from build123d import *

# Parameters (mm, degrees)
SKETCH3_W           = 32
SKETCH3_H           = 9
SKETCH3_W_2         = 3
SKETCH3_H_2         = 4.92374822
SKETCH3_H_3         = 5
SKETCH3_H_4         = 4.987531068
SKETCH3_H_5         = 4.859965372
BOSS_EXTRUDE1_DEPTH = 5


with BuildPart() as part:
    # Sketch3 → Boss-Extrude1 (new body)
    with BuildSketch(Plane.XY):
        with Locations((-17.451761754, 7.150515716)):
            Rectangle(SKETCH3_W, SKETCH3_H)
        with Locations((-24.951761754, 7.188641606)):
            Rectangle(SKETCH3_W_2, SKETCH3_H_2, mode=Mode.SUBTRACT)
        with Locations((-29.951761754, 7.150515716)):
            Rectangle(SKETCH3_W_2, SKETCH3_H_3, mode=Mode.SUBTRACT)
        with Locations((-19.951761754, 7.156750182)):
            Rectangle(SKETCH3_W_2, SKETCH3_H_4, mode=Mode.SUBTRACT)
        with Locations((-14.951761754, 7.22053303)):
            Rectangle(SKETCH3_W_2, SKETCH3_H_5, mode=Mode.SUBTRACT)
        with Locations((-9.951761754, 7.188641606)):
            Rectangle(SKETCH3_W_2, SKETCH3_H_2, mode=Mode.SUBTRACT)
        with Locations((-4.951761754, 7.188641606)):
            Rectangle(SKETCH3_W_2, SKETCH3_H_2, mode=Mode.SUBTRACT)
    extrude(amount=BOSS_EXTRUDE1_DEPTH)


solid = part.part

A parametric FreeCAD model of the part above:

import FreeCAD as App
import Part
import Sketcher
Q = App.Units.Quantity


def add_polygon(sketch, points):
    """Adds a closed chain of lines whose ends are joined by coincident constraints."""
    first, n = sketch.GeometryCount, len(points)
    for a, b in zip(points, points[1:] + points[:1]):
        sketch.addGeometry(Part.LineSegment(App.Vector(*a, 0), App.Vector(*b, 0)), False)
    for i in range(n):
        sketch.addConstraint(Sketcher.Constraint("Coincident", first + i, 2, first + (i + 1) % n, 1))

doc = App.newDocument("Part")
params = doc.addObject("Spreadsheet::Sheet", "Params")
for row, (alias, value) in enumerate([
    ("sketch1_width", "32 mm"),
    ("sketch1_width2", "3 mm"),
    ("sketch1_height", "9 mm"),
    ("sketch1_height2", "5 mm"),
    ("pad1_length", "5 mm"),
], start=1):
    params.set(f"A{row}", alias)
    params.set(f"B{row}", "=" + value)
    params.setAlias(f"B{row}", alias)

body = doc.addObject("PartDesign::Body", "Body")

# Sketch on XY plane
sketch1 = body.newObject("Sketcher::SketchObject", "Sketch")
sketch1.AttachmentSupport = (doc.getObject("XY_Plane"), [""])
sketch1.MapMode = "FlatFace"
add_polygon(sketch1, [(-33.5, 11.7), (-33.5, 2.7), (-1.5, 2.7), (-1.5, 11.7)])  # lines 0-3
add_polygon(sketch1, [(-28.5, 4.7), (-31.5, 4.7), (-31.5, 9.7), (-28.5, 9.7)])  # lines 4-7
add_polygon(sketch1, [(-23.5, 4.7), (-26.5, 4.7), (-26.5, 9.7), (-23.5, 9.7)])  # lines 8-11
add_polygon(sketch1, [(-18.5, 4.7), (-21.5, 4.7), (-21.5, 9.7), (-18.5, 9.7)])  # lines 12-15
add_polygon(sketch1, [(-13.5, 4.8), (-16.5, 4.8), (-16.5, 9.7), (-13.5, 9.7)])  # lines 16-19
add_polygon(sketch1, [(-8.5, 4.7), (-11.5, 4.7), (-11.5, 9.7), (-8.5, 9.7)])  # lines 20-23
add_polygon(sketch1, [(-3.5, 4.7), (-6.5, 4.7), (-6.5, 9.7), (-3.5, 9.7)])  # lines 24-27
sketch1.addConstraint(Sketcher.Constraint("Vertical", 0))
sketch1.addConstraint(Sketcher.Constraint("Horizontal", 1))
sketch1.addConstraint(Sketcher.Constraint("Vertical", 2))
sketch1.addConstraint(Sketcher.Constraint("Horizontal", 3))
sketch1.addConstraint(Sketcher.Constraint("Horizontal", 4))
sketch1.addConstraint(Sketcher.Constraint("Vertical", 5))
sketch1.addConstraint(Sketcher.Constraint("Horizontal", 6))
sketch1.addConstraint(Sketcher.Constraint("Vertical", 7))
sketch1.addConstraint(Sketcher.Constraint("Horizontal", 8))
sketch1.addConstraint(Sketcher.Constraint("Vertical", 9))
sketch1.addConstraint(Sketcher.Constraint("Horizontal", 10))
sketch1.addConstraint(Sketcher.Constraint("Vertical", 11))
sketch1.addConstraint(Sketcher.Constraint("Horizontal", 12))
sketch1.addConstraint(Sketcher.Constraint("Vertical", 13))
sketch1.addConstraint(Sketcher.Constraint("Horizontal", 14))
sketch1.addConstraint(Sketcher.Constraint("Vertical", 15))
sketch1.addConstraint(Sketcher.Constraint("Horizontal", 16))
sketch1.addConstraint(Sketcher.Constraint("Vertical", 17))
sketch1.addConstraint(Sketcher.Constraint("Horizontal", 18))
sketch1.addConstraint(Sketcher.Constraint("Vertical", 19))
sketch1.addConstraint(Sketcher.Constraint("Horizontal", 20))
sketch1.addConstraint(Sketcher.Constraint("Vertical", 21))
sketch1.addConstraint(Sketcher.Constraint("Horizontal", 22))
sketch1.addConstraint(Sketcher.Constraint("Vertical", 23))
sketch1.addConstraint(Sketcher.Constraint("Horizontal", 24))
sketch1.addConstraint(Sketcher.Constraint("Vertical", 25))
sketch1.addConstraint(Sketcher.Constraint("Horizontal", 26))
sketch1.addConstraint(Sketcher.Constraint("Vertical", 27))
sketch1.addConstraint(Sketcher.Constraint("Horizontal", 6, 2, 9, 2))
sketch1.addConstraint(Sketcher.Constraint("Horizontal", 10, 2, 13, 2))
sketch1.addConstraint(Sketcher.Constraint("Horizontal", 14, 2, 17, 2))
sketch1.addConstraint(Sketcher.Constraint("Horizontal", 11, 2, 20, 2))
sketch1.addConstraint(Sketcher.Constraint("Horizontal", 18, 2, 21, 2))
sketch1.addConstraint(Sketcher.Constraint("Horizontal", 23, 2, 24, 2))
sketch1.addConstraint(Sketcher.Constraint("Horizontal", 22, 2, 25, 2))
sketch1.addConstraint(Sketcher.Constraint("Equal", 6, 8))
sketch1.addConstraint(Sketcher.Constraint("Equal", 10, 12))
sketch1.addConstraint(Sketcher.Constraint("Equal", 14, 16))
sketch1.addConstraint(Sketcher.Constraint("Equal", 18, 20))
sketch1.addConstraint(Sketcher.Constraint("Equal", 22, 24))
sketch1.addConstraint(Sketcher.Constraint("DistanceX", 1, 1, 1, 2, Q("32 mm")))
sketch1.addConstraint(Sketcher.Constraint("DistanceX", 4, 2, 4, 1, Q("3 mm")))
sketch1.addConstraint(Sketcher.Constraint("DistanceY", 0, 2, 0, 1, Q("9 mm")))
sketch1.addConstraint(Sketcher.Constraint("DistanceY", 5, 1, 5, 2, Q("5 mm")))
sketch1.addConstraint(Sketcher.Constraint("DistanceX", 0, 2, 4, 2, Q("2 mm")))
sketch1.addConstraint(Sketcher.Constraint("DistanceY", 0, 2, 4, 2, Q("2 mm")))
sketch1.addConstraint(Sketcher.Constraint("DistanceX", 7, 2, 8, 2, Q("2 mm")))
sketch1.addConstraint(Sketcher.Constraint("DistanceX", 11, 2, 12, 2, Q("2 mm")))
sketch1.addConstraint(Sketcher.Constraint("DistanceX", 15, 2, 16, 2, Q("2 mm")))
sketch1.addConstraint(Sketcher.Constraint("DistanceX", 19, 2, 20, 2, Q("2 mm")))
sketch1.addConstraint(Sketcher.Constraint("DistanceX", 23, 2, 24, 2, Q("2 mm")))
sketch1.addConstraint(Sketcher.Constraint("DistanceY", 9, 1, 9, 2, Q("4.923748 mm")))
sketch1.addConstraint(Sketcher.Constraint("DistanceY", 13, 1, 13, 2, Q("4.987531 mm")))
sketch1.addConstraint(Sketcher.Constraint("DistanceY", 17, 1, 17, 2, Q("4.859965 mm")))
sketch1.addConstraint(Sketcher.Constraint("DistanceX", 0, 2, -1, 1, Q("33.451762 mm")))
sketch1.addConstraint(Sketcher.Constraint("DistanceY", -1, 1, 16, 2, Q("4.79055 mm")))
sketch1.setExpression("Constraints[68]", "Params.sketch1_width")
sketch1.setExpression("Constraints[69]", "Params.sketch1_width2")
sketch1.setExpression("Constraints[70]", "Params.sketch1_height")
sketch1.setExpression("Constraints[71]", "Params.sketch1_height2")
pad1 = body.newObject("PartDesign::Pad", "Pad")
pad1.Profile = sketch1
pad1.setExpression("Length", "Params.pad1_length")

doc.recompute()
